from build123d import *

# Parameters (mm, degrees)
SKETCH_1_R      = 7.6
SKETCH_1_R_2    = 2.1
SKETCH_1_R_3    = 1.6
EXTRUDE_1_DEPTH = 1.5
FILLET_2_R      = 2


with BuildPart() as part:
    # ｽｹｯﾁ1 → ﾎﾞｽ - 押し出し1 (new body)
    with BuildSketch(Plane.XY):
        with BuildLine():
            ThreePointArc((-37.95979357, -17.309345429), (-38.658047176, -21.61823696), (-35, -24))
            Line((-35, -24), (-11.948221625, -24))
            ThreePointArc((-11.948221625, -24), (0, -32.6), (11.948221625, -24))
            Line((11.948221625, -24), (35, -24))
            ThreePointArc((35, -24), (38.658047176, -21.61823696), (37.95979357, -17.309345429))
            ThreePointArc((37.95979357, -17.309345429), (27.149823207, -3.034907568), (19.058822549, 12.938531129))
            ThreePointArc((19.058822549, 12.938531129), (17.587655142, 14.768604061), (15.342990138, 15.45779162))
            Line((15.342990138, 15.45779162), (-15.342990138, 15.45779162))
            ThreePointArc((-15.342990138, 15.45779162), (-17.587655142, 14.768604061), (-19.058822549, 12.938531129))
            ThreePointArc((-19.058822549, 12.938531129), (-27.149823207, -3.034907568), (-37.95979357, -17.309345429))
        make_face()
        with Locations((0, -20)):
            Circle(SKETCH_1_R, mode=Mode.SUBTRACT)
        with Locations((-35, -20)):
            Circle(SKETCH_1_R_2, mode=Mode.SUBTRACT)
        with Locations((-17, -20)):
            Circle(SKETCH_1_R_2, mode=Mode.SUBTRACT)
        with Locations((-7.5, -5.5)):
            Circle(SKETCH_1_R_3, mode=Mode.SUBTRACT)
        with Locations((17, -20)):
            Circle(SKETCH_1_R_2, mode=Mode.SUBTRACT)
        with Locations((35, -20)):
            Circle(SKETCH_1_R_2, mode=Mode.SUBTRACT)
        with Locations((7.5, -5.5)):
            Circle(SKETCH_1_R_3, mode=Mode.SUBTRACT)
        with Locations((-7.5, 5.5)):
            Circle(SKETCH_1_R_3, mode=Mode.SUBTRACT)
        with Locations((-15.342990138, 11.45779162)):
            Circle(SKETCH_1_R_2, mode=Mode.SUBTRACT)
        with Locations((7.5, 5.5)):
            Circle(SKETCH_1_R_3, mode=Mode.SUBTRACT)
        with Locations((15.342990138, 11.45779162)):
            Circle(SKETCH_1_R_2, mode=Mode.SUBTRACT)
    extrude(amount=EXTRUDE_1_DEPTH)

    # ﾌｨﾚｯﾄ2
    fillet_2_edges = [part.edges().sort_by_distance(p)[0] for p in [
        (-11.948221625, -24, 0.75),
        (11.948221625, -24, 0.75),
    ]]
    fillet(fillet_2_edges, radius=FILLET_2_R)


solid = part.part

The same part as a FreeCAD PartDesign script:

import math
import FreeCAD as App
import Part
import Sketcher

V = App.Vector


def edges_at(feature, points):
    """Names of the edges that pass closest to the given points."""
    edges = feature.Shape.Edges
    near = lambda p: min(range(len(edges)), key=lambda i: edges[i].distToShape(Part.Vertex(*p))[0])
    return sorted({f"Edge{near(p) + 1}" for p in points})

doc = App.newDocument("Part")
body = doc.addObject("PartDesign::Body", "Body")

# Sketch on XY plane
sketch1 = doc.addObject("Sketcher::SketchObject", "Sketch")
body.addObject(sketch1)
sketch1.AttachmentSupport = (doc.XY_Plane, [""])
sketch1.MapMode = "FlatFace"
sketch1.addGeometry(Part.ArcOfCircle(Part.Circle(V(-35, -20, 0), V(0, 0, 1), 4), math.radians(138), math.radians(270)), False)
sketch1.addGeometry(Part.LineSegment(V(-35, -24, 0), V(-11.9, -24, 0)), False)
sketch1.addGeometry(Part.ArcOfCircle(Part.Circle(V(0, -20, 0), V(0, 0, 1), 12.6), math.radians(-161), math.radians(-19)), False)
sketch1.addGeometry(Part.LineSegment(V(11.9, -24, 0), V(35, -24, 0)), False)
sketch1.addGeometry(Part.ArcOfCircle(Part.Circle(V(35, -20, 0), V(0, 0, 1), 4), math.radians(-90), math.radians(42)), False)
sketch1.addGeometry(Part.ArcOfCircle(Part.Circle(V(112, 50, 0), V(0, 0, 1), 100), math.radians(-158), math.radians(-138)), False)
sketch1.addGeometry(Part.ArcOfCircle(Part.Circle(V(15.3, 11.5, 0), V(0, 0, 1), 4), math.radians(22), math.radians(90)), False)
sketch1.addGeometry(Part.LineSegment(V(15.3, 15.5, 0), V(-15.3, 15.5, 0)), False)
sketch1.addGeometry(Part.ArcOfCircle(Part.Circle(V(-15.3, 11.5, 0), V(0, 0, 1), 4), math.radians(90), math.radians(158)), False)
sketch1.addGeometry(Part.ArcOfCircle(Part.Circle(V(-112, 50, 0), V(0, 0, 1), 100), math.radians(-42), math.radians(-22)), False)
sketch1.addGeometry(Part.Circle(V(-35, -20, 0), V(0, 0, 1), 2.1), False)
sketch1.addGeometry(Part.Circle(V(-17, -20, 0), V(0, 0, 1), 2.1), False)
sketch1.addGeometry(Part.Circle(V(0, -20, 0), V(0, 0, 1), 7.6), False)
sketch1.addGeometry(Part.Circle(V(17, -20, 0), V(0, 0, 1), 2.1), False)
sketch1.addGeometry(Part.Circle(V(35, -20, 0), V(0, 0, 1), 2.1), False)
sketch1.addGeometry(Part.Circle(V(-7.5, -5.5, 0), V(0, 0, 1), 1.6), False)
sketch1.addGeometry(Part.Circle(V(-7.5, 5.5, 0), V(0, 0, 1), 1.6), False)
sketch1.addGeometry(Part.Circle(V(-15.3, 11.5, 0), V(0, 0, 1), 2.1), False)
sketch1.addGeometry(Part.Circle(V(7.5, -5.5, 0), V(0, 0, 1), 1.6), False)
sketch1.addGeometry(Part.Circle(V(7.5, 5.5, 0), V(0, 0, 1), 1.6), False)
sketch1.addGeometry(Part.Circle(V(15.3, 11.5, 0), V(0, 0, 1), 2.1), False)
sketch1.addConstraint(Sketcher.Constraint("Tangent", 0, 2, 1, 1))
sketch1.addConstraint(Sketcher.Constraint("Coincident", 1, 2, 2, 1))
sketch1.addConstraint(Sketcher.Constraint("Coincident", 2, 2, 3, 1))
sketch1.addConstraint(Sketcher.Constraint("Tangent", 3, 2, 4, 1))
sketch1.addConstraint(Sketcher.Constraint("Tangent", 4, 2, 5, 2))
sketch1.addConstraint(Sketcher.Constraint("Tangent", 5, 1, 6, 1))
sketch1.addConstraint(Sketcher.Constraint("Tangent", 6, 2, 7, 1))
sketch1.addConstraint(Sketcher.Constraint("Tangent", 7, 2, 8, 1))
sketch1.addConstraint(Sketcher.Constraint("Tangent", 8, 2, 9, 2))
sketch1.addConstraint(Sketcher.Constraint("Tangent", 9, 1, 0, 1))
sketch1.addConstraint(Sketcher.Constraint("Horizontal", 1))
sketch1.addConstraint(Sketcher.Constraint("Horizontal", 3))
sketch1.addConstraint(Sketcher.Constraint("Horizontal", 7))
sketch1.addConstraint(Sketcher.Constraint("Coincident", 10, 3, 0, 3))
sketch1.addConstraint(Sketcher.Constraint("Coincident", 12, 3, 2, 3))
sketch1.addConstraint(Sketcher.Constraint("Coincident", 14, 3, 4, 3))
sketch1.addConstraint(Sketcher.Constraint("Coincident", 17, 3, 8, 3))
sketch1.addConstraint(Sketcher.Constraint("Coincident", 20, 3, 6, 3))
sketch1.addConstraint(Sketcher.Constraint("Equal", 0, 4))
sketch1.addConstraint(Sketcher.Constraint("Equal", 4, 6))
sketch1.addConstraint(Sketcher.Constraint("Equal", 6, 8))
sketch1.addConstraint(Sketcher.Constraint("Equal", 5, 9))
sketch1.addConstraint(Sketcher.Constraint("Equal", 10, 11))
sketch1.addConstraint(Sketcher.Constraint("Equal", 11, 13))
sketch1.addConstraint(Sketcher.Constraint("Equal", 13, 14))
sketch1.addConstraint(Sketcher.Constraint("Equal", 15, 16))
sketch1.addConstraint(Sketcher.Constraint("Equal", 14, 17))
sketch1.addConstraint(Sketcher.Constraint("Equal", 16, 18))
sketch1.addConstraint(Sketcher.Constraint("Equal", 18, 19))
sketch1.addConstraint(Sketcher.Constraint("Equal", 17, 20))
sketch1.addConstraint(Sketcher.Constraint("Symmetric", 16, 3, 18, 3, -1, 1))
sketch1.addConstraint(Sketcher.Constraint("Symmetric", 15, 3, 19, 3, -1, 1))
sketch1.addConstraint(Sketcher.Constraint("Symmetric", 0, 3, 4, 3, -2))
sketch1.addConstraint(Sketcher.Constraint("Symmetric", 11, 3, 13, 3, -2))
sketch1.addConstraint(Sketcher.Constraint("Symmetric", 15, 3, 18, 3, -2))
sketch1.addConstraint(Sketcher.Constraint("PointOnObject", 2, 3, -2))
sketch1.addConstraint(Sketcher.Constraint("Horizontal", 0, 3, 2, 3))
sketch1.addConstraint(Sketcher.Constraint("Horizontal", 5, 3, 9, 3))
sketch1.addConstraint(Sketcher.Constraint("Horizontal", 10, 3, 11, 3))
sketch1.addConstraint(Sketcher.Constraint("Radius", 0, 4.0))
sketch1.addConstraint(Sketcher.Constraint("Radius", 5, 100.0))
sketch1.addConstraint(Sketcher.Constraint("Diameter", 10, 4.2))
sketch1.addConstraint(Sketcher.Constraint("Diameter", 12, 15.2))
sketch1.addConstraint(Sketcher.Constraint("Diameter", 15, 3.2))
sketch1.addConstraint(Sketcher.Constraint("Radius", 2, 12.6))
sketch1.addConstraint(Sketcher.Constraint("DistanceX", 0, 3, -1, 1, 35.0))
sketch1.addConstraint(Sketcher.Constraint("DistanceY", 0, 3, -1, 1, 20.0))
sketch1.addConstraint(Sketcher.Constraint("DistanceX", 11, 3, -1, 1, 17.0))
sketch1.addConstraint(Sketcher.Constraint("DistanceY", 15, 3, 16, 3, 11.0))
sketch1.addConstraint(Sketcher.Constraint("DistanceX", 15, 3, 18, 3, 15.0))
sketch1.addConstraint(Sketcher.Constraint("DistanceX", 7, 2, 7, 1, 30.68598))
sketch1.addConstraint(Sketcher.Constraint("DistanceY", -1, 1, 5, 3, 49.957019))
pad1 = doc.addObject("PartDesign::Pad", "Pad")
body.addObject(pad1)
pad1.Profile = sketch1
pad1.Length = 1.5
doc.recompute()

fillet = doc.addObject("PartDesign::Fillet", "Fillet")
body.addObject(fillet)
fillet.Base = (pad1, edges_at(pad1, [(-11.948, -24, 0.75), (11.948, -24, 0.75)]))
fillet.Radius = 2

doc.recompute()
